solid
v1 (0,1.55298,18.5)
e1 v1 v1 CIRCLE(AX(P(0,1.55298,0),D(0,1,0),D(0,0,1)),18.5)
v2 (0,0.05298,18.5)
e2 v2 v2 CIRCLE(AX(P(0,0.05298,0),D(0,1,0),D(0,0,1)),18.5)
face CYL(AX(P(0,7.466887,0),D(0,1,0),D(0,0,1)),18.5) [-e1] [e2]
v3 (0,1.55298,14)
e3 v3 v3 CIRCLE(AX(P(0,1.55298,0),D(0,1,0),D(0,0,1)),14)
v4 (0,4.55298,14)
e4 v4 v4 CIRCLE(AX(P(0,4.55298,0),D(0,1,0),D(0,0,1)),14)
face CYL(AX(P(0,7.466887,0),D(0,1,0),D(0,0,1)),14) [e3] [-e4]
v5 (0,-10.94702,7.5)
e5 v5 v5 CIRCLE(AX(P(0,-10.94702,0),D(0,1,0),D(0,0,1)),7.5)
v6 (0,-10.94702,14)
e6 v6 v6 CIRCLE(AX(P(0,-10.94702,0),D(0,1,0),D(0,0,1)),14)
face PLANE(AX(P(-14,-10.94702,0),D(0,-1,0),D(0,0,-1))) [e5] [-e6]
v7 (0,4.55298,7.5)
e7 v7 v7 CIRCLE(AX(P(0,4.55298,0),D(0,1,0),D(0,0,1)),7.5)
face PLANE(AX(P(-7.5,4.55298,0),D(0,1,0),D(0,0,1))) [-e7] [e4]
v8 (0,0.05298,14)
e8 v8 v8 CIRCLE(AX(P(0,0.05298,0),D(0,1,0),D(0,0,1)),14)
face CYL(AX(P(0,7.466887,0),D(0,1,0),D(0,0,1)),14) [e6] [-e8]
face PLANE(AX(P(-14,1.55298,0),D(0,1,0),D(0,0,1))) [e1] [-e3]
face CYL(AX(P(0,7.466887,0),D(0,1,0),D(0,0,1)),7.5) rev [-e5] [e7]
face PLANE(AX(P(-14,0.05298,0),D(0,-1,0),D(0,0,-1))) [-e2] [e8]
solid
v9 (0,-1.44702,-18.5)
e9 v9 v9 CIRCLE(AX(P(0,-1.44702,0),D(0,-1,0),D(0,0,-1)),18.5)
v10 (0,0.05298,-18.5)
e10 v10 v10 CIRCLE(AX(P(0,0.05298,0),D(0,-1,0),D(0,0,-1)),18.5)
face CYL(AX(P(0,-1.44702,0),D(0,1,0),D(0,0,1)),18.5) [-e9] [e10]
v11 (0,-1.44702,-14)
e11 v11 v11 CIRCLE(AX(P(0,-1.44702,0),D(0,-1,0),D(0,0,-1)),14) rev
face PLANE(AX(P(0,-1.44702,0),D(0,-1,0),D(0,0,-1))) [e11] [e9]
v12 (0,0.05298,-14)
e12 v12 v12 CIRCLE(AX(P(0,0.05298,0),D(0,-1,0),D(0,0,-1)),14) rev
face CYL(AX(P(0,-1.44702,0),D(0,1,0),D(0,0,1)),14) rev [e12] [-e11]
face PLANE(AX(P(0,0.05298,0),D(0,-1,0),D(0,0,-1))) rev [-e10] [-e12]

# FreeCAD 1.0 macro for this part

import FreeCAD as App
import Part
import Sketcher
from FreeCAD import Vector
Q = App.Units.Quantity

doc = App.newDocument("Part")
params = doc.addObject("Spreadsheet::Sheet", "Params")
for row, (alias, value) in enumerate([
    ("sketch1_height", "3 mm"),
    ("sketch1_height2", "11 mm"),
    ("sketch1_width", "6.5 mm"),
    ("sketch1_width2", "4.5 mm"),
    ("sketch1_height3", "1.5 mm"),
    ("revolution_angle", "360 deg"),
    ("sketch2_diameter", "37 mm"),
    ("sketch2_diameter2", "28 mm"),
    ("pad1_length", "1.5 mm"),
], start=1):
    params.set(f"A{row}", alias)
    params.set(f"B{row}", "=" + value)
    params.setAlias(f"B{row}", alias)

body = doc.addObject("PartDesign::Body", "Body")

# Sketch on XY plane
sketch1 = body.newObject("Sketcher::SketchObject", "Sketch")
sketch1.AttachmentSupport = (doc.getObject("XY_Plane"), [""])
sketch1.MapMode = "FlatFace"
sketch1.addGeometry([
    Part.LineSegment(Vector(-7.5, 4.6, 0), Vector(-14, 4.6, 0)),  # 0
    Part.LineSegment(Vector(-14, 4.6, 0), Vector(-14, 1.6, 0)),  # 1
    Part.LineSegment(Vector(-14, 1.6, 0), Vector(-18.5, 1.6, 0)),  # 2
    Part.LineSegment(Vector(-18.5, 1.6, 0), Vector(-18.5, 0.1, 0)),  # 3
    Part.LineSegment(Vector(-18.5, 0.1, 0), Vector(-14, 0.1, 0)),  # 4
    Part.LineSegment(Vector(-14, 0.1, 0), Vector(-14, -10.9, 0)),  # 5
    Part.LineSegment(Vector(-14, -10.9, 0), Vector(-7.5, -10.9, 0)),  # 6
    Part.LineSegment(Vector(-7.5, -10.9, 0), Vector(-7.5, 4.6, 0)),  # 7
], False)
sketch1.addConstraint([
    Sketcher.Constraint("Coincident", 0, 2, 1, 1),
    Sketcher.Constraint("Coincident", 1, 2, 2, 1),
    Sketcher.Constraint("Coincident", 2, 2, 3, 1),
    Sketcher.Constraint("Coincident", 3, 2, 4, 1),
    Sketcher.Constraint("Coincident", 4, 2, 5, 1),
    Sketcher.Constraint("Coincident", 5, 2, 6, 1),
    Sketcher.Constraint("Coincident", 6, 2, 7, 1),
    Sketcher.Constraint("Coincident", 7, 2, 0, 1),
    Sketcher.Constraint("Horizontal", 0),
    Sketcher.Constraint("Vertical", 1),
    Sketcher.Constraint("Horizontal", 2),
    Sketcher.Constraint("Vertical", 3),
    Sketcher.Constraint("Horizontal", 4),
    Sketcher.Constraint("Vertical", 5),
    Sketcher.Constraint("Horizontal", 6),
    Sketcher.Constraint("Vertical", 7),
    Sketcher.Constraint("Vertical", 1, 2, 4, 2),
    Sketcher.Constraint("DistanceY", 1, 2, 1, 1, Q("3 mm")),
    Sketcher.Constraint("DistanceY", 5, 2, 5, 1, Q("11 mm")),
    Sketcher.Constraint("DistanceX", 0, 2, 0, 1, Q("6.5 mm")),
    Sketcher.Constraint("DistanceX", 2, 2, 2, 1, Q("4.5 mm")),
    Sketcher.Constraint("DistanceY", 3, 2, 3, 1, Q("1.5 mm")),
    Sketcher.Constraint("DistanceX", 0, 2, -1, 1, Q("14 mm")),
    Sketcher.Constraint("DistanceY", -1, 1, 0, 2, Q("4.55298 mm")),
])
sketch1.setExpression("Constraints[17]", "Params.sketch1_height")
sketch1.setExpression("Constraints[18]", "Params.sketch1_height2")
sketch1.setExpression("Constraints[19]", "Params.sketch1_width")
sketch1.setExpression("Constraints[20]", "Params.sketch1_width2")
sketch1.setExpression("Constraints[21]", "Params.sketch1_height3")
revolution = body.newObject("PartDesign::Revolution", "Revolution")
revolution.Profile = sketch1
revolution.ReferenceAxis = (sketch1, ["V_Axis"])
revolution.setExpression("Angle", "Params.revolution_angle")
body2 = doc.addObject("PartDesign::Body", "Body001")

# Sketch on XZ plane
sketch2 = body2.newObject("Sketcher::SketchObject", "Sketch001")
sketch2.AttachmentSupport = (doc.getObject("XZ_Plane001"), [""])
sketch2.MapMode = "FlatFace"
sketch2.AttachmentOffset = App.Placement(Vector(0, 0, -0.05298), App.Rotation())
sketch2.addGeometry([
    Part.Circle(Vector(0, 0, 0), Vector(0, 0, 1), 18),
    Part.Circle(Vector(0, 0, 0), Vector(0, 0, 1), 14),
], False)
sketch2.addConstraint([
    Sketcher.Constraint("Coincident", 0, 3, -1, 1),
    Sketcher.Constraint("Coincident", 1, 3, -1, 1),
    Sketcher.Constraint("Diameter", 0, Q("37 mm")),
    Sketcher.Constraint("Diameter", 1, Q("28 mm")),
])
sketch2.setExpression("Constraints[2]", "Params.sketch2_diameter")
sketch2.setExpression("Constraints[3]", "Params.sketch2_diameter2")
pad1 = body2.newObject("PartDesign::Pad", "Pad")
pad1.Profile = sketch2
pad1.setExpression("Length", "Params.pad1_length")

doc.recompute()
